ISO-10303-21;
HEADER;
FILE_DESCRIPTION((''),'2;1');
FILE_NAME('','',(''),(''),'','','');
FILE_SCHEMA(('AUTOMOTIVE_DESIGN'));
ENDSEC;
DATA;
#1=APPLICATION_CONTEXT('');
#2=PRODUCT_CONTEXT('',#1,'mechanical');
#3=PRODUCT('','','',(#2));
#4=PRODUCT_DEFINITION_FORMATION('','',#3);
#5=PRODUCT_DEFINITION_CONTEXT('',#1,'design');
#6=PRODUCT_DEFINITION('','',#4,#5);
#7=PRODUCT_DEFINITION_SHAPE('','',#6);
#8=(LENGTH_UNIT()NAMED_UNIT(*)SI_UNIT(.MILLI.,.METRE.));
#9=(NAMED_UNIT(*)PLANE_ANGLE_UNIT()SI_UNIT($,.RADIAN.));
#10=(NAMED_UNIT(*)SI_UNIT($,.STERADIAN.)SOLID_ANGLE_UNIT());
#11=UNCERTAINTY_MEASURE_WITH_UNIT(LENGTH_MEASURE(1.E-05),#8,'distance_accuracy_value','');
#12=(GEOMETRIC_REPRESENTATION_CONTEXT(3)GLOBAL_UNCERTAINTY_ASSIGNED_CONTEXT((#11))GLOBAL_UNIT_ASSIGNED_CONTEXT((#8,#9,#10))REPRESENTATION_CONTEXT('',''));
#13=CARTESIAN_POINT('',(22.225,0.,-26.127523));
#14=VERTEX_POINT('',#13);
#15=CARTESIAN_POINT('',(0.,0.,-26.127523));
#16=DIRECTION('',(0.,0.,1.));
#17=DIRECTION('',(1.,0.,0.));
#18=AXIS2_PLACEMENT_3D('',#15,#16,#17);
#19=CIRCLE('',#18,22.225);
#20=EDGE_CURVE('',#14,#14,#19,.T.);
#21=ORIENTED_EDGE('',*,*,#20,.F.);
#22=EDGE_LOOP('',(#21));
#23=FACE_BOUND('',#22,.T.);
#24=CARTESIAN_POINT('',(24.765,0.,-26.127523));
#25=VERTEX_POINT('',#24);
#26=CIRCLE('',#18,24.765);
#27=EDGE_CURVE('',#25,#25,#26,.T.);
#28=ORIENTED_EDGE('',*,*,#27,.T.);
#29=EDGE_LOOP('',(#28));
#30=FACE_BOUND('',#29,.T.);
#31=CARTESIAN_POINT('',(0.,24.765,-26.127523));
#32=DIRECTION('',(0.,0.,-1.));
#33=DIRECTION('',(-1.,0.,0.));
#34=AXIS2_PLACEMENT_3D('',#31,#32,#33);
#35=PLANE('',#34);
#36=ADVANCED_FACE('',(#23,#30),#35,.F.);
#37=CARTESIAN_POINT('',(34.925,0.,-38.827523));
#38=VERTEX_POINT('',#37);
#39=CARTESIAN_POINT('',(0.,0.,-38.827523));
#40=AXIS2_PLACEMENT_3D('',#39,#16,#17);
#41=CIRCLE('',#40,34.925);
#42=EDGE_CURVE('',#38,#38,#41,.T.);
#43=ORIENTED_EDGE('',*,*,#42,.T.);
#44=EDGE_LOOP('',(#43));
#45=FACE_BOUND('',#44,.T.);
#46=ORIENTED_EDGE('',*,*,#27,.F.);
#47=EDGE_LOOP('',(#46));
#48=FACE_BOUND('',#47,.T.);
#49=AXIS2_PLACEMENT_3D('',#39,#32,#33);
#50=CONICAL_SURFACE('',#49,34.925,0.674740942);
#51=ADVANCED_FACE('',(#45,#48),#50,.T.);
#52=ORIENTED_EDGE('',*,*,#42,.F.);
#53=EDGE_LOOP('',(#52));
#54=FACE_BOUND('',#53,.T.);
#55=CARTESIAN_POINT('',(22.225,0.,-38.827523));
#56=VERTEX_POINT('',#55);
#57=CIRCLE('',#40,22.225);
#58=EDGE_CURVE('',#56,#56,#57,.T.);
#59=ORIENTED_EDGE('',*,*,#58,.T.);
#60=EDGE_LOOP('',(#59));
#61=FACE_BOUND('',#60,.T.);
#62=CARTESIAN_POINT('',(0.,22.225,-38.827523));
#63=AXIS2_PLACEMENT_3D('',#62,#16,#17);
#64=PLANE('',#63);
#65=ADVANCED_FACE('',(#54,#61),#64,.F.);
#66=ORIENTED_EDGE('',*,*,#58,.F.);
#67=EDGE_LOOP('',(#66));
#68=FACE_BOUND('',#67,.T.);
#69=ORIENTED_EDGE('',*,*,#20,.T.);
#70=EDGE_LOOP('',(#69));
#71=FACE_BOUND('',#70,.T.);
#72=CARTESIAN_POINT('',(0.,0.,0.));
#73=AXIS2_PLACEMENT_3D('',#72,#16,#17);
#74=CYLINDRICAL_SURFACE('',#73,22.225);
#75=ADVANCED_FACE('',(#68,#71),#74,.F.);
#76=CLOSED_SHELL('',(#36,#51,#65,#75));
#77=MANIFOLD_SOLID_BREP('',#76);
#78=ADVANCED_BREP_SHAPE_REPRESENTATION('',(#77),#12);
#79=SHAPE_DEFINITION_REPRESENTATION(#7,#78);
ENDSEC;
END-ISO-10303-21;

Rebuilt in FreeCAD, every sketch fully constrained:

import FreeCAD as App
import Part
import Sketcher
from FreeCAD import Vector
Q = App.Units.Quantity


def add_polygon(sketch, points):
    """Adds a closed chain of lines whose ends are joined by coincident constraints."""
    first, n = sketch.GeometryCount, len(points)
    for a, b in zip(points, points[1:] + points[:1]):
        sketch.addGeometry(Part.LineSegment(App.Vector(*a, 0), App.Vector(*b, 0)), False)
    for i in range(n):
        sketch.addConstraint(Sketcher.Constraint("Coincident", first + i, 2, first + (i + 1) % n, 1))

doc = App.newDocument("Part")
body = doc.addObject("PartDesign::Body", "Body")

sketch1 = body.newObject("Sketcher::SketchObject", "Sketch")
sketch1.AttachmentSupport = (doc.getObject("YZ_Plane"), [""])
sketch1.MapMode = "FlatFace"
add_polygon(sketch1, [(22.225, -26.127523), (22.225, -38.827523), (34.925, -38.827523), (24.765, -26.127523)])
sketch1.addConstraint([
    Sketcher.Constraint("Vertical", 0),
    Sketcher.Constraint("Horizontal", 1),
    Sketcher.Constraint("Horizontal", 3),
    Sketcher.Constraint("Equal", 1, 0),
    Sketcher.Constraint("DistanceX", 1, 1, 1, 2, Q("0.5 in")),
    Sketcher.Constraint("DistanceX", 3, 2, 3, 1, Q("0.1 in")),
    Sketcher.Constraint("DistanceX", -1, 1, 0, 2, Q("0.875 in")),
    Sketcher.Constraint("DistanceY", 0, 2, -1, 1, Q("38.827523 mm")),
])
revolution = body.newObject("PartDesign::Revolution", "Revolution")
revolution.Profile = sketch1
revolution.ReferenceAxis = (sketch1, ["V_Axis"])
revolution.Angle = 360

doc.recompute()
